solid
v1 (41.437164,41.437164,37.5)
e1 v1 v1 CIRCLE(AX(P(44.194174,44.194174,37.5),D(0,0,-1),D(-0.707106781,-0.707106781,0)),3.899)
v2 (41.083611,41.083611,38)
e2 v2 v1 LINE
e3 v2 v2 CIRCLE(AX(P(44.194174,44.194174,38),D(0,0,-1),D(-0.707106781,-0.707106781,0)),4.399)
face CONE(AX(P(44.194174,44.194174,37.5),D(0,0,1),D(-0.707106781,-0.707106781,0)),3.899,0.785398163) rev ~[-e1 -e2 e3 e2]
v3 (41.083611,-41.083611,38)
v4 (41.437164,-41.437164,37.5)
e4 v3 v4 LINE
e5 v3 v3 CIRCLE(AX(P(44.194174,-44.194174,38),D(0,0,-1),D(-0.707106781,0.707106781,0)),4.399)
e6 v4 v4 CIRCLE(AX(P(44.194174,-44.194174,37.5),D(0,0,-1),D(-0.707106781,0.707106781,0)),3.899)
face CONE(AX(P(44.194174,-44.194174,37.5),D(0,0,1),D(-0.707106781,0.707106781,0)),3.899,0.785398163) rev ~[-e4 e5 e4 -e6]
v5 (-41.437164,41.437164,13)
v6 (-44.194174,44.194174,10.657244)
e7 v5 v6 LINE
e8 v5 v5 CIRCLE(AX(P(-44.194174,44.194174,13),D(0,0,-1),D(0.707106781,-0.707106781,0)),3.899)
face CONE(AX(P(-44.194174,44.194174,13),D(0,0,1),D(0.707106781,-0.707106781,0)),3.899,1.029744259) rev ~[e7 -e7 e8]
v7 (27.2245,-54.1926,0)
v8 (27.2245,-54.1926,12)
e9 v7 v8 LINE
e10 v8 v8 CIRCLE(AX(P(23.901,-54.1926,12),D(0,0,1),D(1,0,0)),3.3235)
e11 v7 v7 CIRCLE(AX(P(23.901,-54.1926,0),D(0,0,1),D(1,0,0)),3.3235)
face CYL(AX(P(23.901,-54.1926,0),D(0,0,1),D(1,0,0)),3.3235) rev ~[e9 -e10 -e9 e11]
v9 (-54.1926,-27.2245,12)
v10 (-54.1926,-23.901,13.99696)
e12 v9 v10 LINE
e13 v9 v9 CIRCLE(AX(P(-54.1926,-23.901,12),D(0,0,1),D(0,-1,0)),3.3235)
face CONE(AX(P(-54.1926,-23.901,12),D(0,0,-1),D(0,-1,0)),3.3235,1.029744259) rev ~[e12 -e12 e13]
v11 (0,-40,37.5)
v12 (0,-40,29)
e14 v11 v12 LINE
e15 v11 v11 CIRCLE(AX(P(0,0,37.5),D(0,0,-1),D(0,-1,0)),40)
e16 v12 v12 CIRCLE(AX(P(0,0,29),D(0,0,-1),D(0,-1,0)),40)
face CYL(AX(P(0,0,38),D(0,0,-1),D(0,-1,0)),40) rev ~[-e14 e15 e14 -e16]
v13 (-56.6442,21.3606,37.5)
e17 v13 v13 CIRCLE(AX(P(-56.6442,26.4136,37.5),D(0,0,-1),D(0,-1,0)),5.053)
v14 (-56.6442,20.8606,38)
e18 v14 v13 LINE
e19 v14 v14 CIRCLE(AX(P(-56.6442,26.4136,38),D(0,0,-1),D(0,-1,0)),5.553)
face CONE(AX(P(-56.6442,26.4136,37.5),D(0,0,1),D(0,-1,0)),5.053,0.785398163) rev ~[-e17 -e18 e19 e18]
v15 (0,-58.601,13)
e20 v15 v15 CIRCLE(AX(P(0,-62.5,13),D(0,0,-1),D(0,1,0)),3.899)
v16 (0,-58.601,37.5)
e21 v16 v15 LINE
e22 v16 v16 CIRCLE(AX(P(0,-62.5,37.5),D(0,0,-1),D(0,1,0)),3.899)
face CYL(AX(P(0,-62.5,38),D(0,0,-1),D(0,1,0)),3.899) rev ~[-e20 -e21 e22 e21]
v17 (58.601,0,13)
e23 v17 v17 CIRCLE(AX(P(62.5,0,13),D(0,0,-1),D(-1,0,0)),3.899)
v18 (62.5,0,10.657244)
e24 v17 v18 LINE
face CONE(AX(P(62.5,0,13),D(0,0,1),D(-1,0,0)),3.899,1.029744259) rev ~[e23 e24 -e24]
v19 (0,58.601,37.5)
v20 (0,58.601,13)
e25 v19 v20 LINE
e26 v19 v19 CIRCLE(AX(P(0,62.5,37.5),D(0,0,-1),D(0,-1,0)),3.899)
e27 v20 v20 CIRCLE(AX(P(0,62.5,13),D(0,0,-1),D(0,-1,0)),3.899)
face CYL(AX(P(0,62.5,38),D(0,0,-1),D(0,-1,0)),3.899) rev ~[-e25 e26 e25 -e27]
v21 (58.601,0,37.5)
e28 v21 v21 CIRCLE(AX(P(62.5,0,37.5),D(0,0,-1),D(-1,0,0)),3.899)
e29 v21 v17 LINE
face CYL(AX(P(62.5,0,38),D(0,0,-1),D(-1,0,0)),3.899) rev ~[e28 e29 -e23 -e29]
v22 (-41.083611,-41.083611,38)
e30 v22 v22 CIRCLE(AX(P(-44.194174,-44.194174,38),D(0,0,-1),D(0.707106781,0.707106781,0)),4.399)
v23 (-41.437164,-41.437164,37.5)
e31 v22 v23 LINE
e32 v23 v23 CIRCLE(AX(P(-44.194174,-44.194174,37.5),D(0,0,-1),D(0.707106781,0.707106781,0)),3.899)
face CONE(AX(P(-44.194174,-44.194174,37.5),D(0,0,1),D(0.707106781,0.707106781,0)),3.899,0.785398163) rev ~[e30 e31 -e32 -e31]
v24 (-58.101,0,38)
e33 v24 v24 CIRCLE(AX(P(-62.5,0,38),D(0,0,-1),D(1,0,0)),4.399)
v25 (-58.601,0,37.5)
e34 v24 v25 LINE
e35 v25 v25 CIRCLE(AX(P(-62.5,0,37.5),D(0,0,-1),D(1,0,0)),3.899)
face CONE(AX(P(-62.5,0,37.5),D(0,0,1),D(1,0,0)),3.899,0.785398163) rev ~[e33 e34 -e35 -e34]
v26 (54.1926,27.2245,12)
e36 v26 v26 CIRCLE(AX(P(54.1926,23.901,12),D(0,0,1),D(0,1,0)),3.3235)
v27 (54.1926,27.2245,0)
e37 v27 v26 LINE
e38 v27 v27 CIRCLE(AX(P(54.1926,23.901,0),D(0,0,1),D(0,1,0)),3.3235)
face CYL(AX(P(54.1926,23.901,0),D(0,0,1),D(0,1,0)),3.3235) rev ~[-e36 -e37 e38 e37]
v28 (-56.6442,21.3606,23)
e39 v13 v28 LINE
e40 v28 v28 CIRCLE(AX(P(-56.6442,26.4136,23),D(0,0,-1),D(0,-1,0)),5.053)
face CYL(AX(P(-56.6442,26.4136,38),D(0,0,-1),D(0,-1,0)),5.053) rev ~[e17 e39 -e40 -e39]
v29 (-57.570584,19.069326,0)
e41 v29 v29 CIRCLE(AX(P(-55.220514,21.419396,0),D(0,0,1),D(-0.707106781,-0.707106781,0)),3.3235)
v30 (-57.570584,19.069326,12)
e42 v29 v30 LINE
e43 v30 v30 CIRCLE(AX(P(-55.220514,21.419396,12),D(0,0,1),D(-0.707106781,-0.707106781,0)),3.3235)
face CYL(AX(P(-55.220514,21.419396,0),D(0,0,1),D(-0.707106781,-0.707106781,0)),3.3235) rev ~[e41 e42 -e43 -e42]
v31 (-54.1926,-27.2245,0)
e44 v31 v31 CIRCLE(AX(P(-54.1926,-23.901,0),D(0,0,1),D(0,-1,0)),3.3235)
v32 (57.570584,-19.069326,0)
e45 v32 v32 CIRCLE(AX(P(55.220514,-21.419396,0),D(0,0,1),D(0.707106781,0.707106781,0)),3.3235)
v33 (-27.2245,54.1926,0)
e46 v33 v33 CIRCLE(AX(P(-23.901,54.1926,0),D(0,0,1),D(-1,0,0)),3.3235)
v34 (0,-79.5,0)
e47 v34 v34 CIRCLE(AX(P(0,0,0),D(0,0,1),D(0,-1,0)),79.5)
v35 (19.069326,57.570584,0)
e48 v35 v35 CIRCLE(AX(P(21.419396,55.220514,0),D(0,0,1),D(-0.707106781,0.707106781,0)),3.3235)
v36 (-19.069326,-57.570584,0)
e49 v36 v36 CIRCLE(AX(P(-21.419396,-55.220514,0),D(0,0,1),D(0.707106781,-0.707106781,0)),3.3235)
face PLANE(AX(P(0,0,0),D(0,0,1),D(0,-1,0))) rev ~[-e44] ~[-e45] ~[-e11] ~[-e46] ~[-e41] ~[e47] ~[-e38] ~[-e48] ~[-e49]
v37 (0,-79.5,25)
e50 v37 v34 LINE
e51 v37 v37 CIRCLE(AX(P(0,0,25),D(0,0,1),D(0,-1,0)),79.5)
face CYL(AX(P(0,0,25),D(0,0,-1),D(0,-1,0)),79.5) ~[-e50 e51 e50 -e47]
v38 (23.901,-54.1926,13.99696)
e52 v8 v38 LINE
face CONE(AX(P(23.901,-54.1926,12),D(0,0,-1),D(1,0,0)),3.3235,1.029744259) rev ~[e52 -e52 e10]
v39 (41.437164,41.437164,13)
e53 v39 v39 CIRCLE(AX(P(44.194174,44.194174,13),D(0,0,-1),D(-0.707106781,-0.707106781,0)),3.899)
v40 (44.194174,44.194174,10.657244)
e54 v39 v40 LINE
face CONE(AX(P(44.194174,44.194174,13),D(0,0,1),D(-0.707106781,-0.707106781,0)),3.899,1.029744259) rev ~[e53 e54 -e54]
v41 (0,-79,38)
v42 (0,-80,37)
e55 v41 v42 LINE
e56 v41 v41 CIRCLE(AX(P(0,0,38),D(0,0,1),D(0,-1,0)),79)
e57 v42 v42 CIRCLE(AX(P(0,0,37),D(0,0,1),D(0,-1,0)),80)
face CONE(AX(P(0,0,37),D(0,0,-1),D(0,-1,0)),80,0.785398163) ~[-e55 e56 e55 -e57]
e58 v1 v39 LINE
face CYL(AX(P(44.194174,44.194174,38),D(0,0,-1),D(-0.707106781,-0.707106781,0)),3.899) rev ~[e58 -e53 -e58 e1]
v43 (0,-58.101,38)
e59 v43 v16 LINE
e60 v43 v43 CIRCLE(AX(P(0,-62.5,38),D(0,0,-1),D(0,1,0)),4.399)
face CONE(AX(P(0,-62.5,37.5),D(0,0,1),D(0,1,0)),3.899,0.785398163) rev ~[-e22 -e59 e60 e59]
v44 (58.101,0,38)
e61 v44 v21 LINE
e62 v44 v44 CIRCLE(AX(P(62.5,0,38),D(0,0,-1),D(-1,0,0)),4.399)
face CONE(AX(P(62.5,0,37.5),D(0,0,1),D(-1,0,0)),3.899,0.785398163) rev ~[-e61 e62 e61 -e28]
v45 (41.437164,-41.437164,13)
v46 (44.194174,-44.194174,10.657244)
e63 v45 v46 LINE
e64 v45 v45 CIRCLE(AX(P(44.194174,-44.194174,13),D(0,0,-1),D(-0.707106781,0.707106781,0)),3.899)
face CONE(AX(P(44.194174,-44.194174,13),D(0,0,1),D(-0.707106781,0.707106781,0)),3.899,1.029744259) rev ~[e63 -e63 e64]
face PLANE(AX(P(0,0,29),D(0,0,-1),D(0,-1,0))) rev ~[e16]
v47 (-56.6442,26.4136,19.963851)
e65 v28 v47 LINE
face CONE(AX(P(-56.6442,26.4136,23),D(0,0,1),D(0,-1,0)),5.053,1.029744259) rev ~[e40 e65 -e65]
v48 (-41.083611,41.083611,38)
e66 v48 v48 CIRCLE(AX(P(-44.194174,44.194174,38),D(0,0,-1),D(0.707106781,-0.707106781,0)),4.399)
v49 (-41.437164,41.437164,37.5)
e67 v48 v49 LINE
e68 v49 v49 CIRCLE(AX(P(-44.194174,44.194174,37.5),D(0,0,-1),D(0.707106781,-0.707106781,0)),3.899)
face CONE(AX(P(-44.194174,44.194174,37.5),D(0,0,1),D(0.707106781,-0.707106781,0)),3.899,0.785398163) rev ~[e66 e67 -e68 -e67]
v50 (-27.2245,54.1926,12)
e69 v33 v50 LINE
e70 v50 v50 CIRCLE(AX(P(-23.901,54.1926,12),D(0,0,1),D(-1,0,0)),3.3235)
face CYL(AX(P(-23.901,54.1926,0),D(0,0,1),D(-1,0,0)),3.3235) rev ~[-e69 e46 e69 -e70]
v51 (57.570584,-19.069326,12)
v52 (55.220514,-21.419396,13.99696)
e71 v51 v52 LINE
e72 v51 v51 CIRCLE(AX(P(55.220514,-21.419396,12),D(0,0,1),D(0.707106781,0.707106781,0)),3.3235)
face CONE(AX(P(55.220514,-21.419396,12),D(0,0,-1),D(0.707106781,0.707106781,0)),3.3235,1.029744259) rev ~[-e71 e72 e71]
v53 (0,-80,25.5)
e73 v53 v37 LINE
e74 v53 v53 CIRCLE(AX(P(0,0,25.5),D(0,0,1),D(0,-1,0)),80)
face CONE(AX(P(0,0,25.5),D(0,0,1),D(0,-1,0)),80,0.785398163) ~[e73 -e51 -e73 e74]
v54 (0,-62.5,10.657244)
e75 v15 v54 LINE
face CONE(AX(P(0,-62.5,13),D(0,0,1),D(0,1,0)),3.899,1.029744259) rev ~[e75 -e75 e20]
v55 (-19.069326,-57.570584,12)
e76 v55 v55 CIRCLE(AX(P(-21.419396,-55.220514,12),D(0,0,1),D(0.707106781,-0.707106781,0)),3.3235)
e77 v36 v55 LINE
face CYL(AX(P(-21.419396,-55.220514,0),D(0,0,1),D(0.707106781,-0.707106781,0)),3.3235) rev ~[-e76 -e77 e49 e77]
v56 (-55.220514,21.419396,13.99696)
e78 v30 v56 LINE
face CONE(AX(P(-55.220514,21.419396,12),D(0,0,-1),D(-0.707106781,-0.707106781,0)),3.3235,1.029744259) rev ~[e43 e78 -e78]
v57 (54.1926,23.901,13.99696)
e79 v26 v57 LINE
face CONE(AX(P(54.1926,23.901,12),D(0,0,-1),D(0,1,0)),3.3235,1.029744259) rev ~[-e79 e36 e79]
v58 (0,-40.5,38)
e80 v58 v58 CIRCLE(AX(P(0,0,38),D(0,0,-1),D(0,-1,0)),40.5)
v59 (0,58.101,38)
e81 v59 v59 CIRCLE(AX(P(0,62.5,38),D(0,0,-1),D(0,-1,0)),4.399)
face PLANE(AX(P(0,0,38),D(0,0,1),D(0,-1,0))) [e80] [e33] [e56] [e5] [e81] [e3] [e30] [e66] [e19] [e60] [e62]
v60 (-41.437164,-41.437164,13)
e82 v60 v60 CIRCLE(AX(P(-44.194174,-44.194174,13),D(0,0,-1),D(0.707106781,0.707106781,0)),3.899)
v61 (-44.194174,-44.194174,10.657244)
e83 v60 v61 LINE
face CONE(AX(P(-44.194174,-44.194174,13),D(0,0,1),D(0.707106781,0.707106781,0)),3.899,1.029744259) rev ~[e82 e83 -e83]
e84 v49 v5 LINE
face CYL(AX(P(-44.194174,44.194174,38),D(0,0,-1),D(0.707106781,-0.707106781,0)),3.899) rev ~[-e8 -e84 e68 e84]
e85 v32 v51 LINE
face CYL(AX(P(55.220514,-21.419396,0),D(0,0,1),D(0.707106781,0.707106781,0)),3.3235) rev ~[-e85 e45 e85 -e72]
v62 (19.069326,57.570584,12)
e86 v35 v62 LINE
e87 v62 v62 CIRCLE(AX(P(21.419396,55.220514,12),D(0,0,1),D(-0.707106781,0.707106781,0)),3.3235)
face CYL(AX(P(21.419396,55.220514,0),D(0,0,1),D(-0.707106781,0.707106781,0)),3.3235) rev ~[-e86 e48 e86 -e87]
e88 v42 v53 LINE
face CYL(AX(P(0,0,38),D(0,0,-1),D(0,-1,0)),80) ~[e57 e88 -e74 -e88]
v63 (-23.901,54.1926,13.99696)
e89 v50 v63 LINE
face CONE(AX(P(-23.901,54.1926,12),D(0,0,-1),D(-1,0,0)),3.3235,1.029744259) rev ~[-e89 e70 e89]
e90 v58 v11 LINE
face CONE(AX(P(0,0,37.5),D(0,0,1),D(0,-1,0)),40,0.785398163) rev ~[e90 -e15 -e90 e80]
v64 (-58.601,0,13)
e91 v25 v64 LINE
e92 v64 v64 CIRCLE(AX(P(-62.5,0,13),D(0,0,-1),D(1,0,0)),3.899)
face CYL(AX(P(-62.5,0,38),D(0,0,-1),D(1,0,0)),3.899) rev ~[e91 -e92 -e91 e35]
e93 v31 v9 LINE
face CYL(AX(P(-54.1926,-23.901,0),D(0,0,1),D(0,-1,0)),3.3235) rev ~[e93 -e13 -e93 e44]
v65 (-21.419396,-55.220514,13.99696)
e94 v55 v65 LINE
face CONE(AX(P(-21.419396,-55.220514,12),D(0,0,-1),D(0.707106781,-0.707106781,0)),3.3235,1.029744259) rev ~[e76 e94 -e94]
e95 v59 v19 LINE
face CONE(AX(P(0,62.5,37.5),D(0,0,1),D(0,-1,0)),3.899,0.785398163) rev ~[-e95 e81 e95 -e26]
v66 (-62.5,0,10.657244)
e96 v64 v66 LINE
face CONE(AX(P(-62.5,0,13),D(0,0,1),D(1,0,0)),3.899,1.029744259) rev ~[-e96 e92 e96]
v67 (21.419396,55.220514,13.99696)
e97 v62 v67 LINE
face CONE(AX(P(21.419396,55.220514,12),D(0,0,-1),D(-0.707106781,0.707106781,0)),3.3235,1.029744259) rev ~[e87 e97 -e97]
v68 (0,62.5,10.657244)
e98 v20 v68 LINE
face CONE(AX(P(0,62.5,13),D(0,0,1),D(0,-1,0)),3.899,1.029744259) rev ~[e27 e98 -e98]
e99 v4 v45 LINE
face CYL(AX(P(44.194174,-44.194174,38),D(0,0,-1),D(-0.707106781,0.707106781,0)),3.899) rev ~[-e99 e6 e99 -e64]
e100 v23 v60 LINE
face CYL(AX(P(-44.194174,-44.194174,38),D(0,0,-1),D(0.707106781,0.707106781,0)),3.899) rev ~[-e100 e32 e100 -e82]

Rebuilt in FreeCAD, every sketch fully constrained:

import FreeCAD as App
import Part
import Sketcher
Q = App.Units.Quantity


def edges_at(feature, points):
    """Names of the edges that pass closest to the given points."""
    edges = feature.Shape.Edges
    near = lambda p: min(range(len(edges)), key=lambda i: edges[i].distToShape(Part.Vertex(*p))[0])
    return sorted({f"Edge{near(p) + 1}" for p in points})

doc = App.newDocument("Part")
body = doc.addObject("PartDesign::Body", "Body")

# Sketch on YZ plane
sketch1 = doc.addObject("Sketcher::SketchObject", "Sketch")
body.addObject(sketch1)
sketch1.AttachmentSupport = (doc.YZ_Plane, [""])
sketch1.MapMode = "FlatFace"
sketch1.addGeometry([
    Part.LineSegment(App.Vector(0, 38, 0), App.Vector(-80, 38, 0)),  # 0
    Part.LineSegment(App.Vector(-80, 38, 0), App.Vector(-80, 25.5, 0)),  # 1
    Part.LineSegment(App.Vector(-80, 25.5, 0), App.Vector(-79.5, 25, 0)),  # 2
    Part.LineSegment(App.Vector(-79.5, 25, 0), App.Vector(-79.5, 0, 0)),  # 3
    Part.LineSegment(App.Vector(-79.5, 0, 0), App.Vector(0, 0, 0)),  # 4
    Part.LineSegment(App.Vector(0, 0, 0), App.Vector(0, 38, 0)),  # 5
], False)
sketch1.addConstraint([
    Sketcher.Constraint("Coincident", 0, 2, 1, 1),
    Sketcher.Constraint("Coincident", 1, 2, 2, 1),
    Sketcher.Constraint("Coincident", 2, 2, 3, 1),
    Sketcher.Constraint("Coincident", 3, 2, 4, 1),
    Sketcher.Constraint("Coincident", 4, 2, 5, 1),
    Sketcher.Constraint("Coincident", 5, 2, 0, 1),
    Sketcher.Constraint("Horizontal", 0),
    Sketcher.Constraint("Vertical", 1),
    Sketcher.Constraint("Vertical", 3),
    Sketcher.Constraint("Horizontal", 4),
    Sketcher.Constraint("Vertical", 5),
    Sketcher.Constraint("Coincident", 4, 2, -1, 1),
    Sketcher.Constraint("DistanceX", 0, 2, 0, 1, 80.0),
    Sketcher.Constraint("DistanceY", 3, 2, 3, 1, 25.0),
    Sketcher.Constraint("DistanceY", 5, 1, 5, 2, 38.0),
    Sketcher.Constraint("Angle", 2, Q("-45 deg")),
    Sketcher.Constraint("DistanceX", 4, 1, 4, 2, 79.5),
])
revolution = doc.addObject("PartDesign::Revolution", "Revolution")
body.addObject(revolution)
revolution.Profile = sketch1
revolution.ReferenceAxis = (sketch1, ["V_Axis"])
revolution.Angle = 360

# Sketch on XY plane
sketch2 = doc.addObject("Sketcher::SketchObject", "Sketch001")
body.addObject(sketch2)
sketch2.AttachmentSupport = (doc.XY_Plane, [""])
sketch2.MapMode = "FlatFace"
sketch2.AttachmentOffset = App.Placement(App.Vector(0, 0, 38), App.Rotation())
sketch2.addGeometry(Part.Circle(App.Vector(0, 62.5, 0), App.Vector(0, 0, 1), 3.9), False)
sketch2.addConstraint([
    Sketcher.Constraint("PointOnObject", 0, 3, -2),
    Sketcher.Constraint("Diameter", 0, 7.798),
    Sketcher.Constraint("DistanceY", -1, 1, 0, 3, 62.5),
])
doc.recompute()
hole = doc.addObject("PartDesign::Hole", "Hole")
body.addObject(hole)
hole.Profile = sketch2
hole.ThreadType = "None"
hole.Diameter = 7.798
hole.DepthType = "Dimension"
hole.Depth = 25
hole.DrillPoint = "Angled"
hole.DrillPointAngle = 118
doc.recompute()

polarpattern = doc.addObject("PartDesign::PolarPattern", "PolarPattern")
body.addObject(polarpattern)
polarpattern.Originals = [hole]
polarpattern.Axis = (doc.Z_Axis, [""])
polarpattern.Angle = 360
polarpattern.Occurrences = 8
body.Tip = polarpattern
doc.recompute()

chamfer = doc.addObject("PartDesign::Chamfer", "Chamfer")
body.addObject(chamfer)
chamfer.Base = (polarpattern, edges_at(polarpattern, [(0, 80, 38)]))
chamfer.Size = 1

# Sketch on XY plane
sketch3 = doc.addObject("Sketcher::SketchObject", "Sketch002")
body.addObject(sketch3)
sketch3.AttachmentSupport = (doc.XY_Plane, [""])
sketch3.MapMode = "FlatFace"
sketch3.AttachmentOffset = App.Placement(App.Vector(0, 0, 38), App.Rotation())
sketch3.addGeometry(Part.Circle(App.Vector(0, 0, 0), App.Vector(0, 0, 1), 40), False)
sketch3.addConstraint([
    Sketcher.Constraint("Coincident", 0, 3, -1, 1),
    Sketcher.Constraint("Diameter", 0, 80.0),
])
doc.recompute()
hole2 = doc.addObject("PartDesign::Hole", "Hole001")
body.addObject(hole2)
hole2.Profile = sketch3
hole2.ThreadType = "None"
hole2.Diameter = 80
hole2.DepthType = "Dimension"
hole2.Depth = 9
hole2.DrillPoint = "Flat"
doc.recompute()

chamfer2 = doc.addObject("PartDesign::Chamfer", "Chamfer001")
body.addObject(chamfer2)
chamfer2.Base = (hole2, edges_at(hole2, [
    (-46.951, 46.951, 38),
    (-66.399, 0, 38),
    (-46.951, -46.951, 38),
    (0, -66.399, 38),
    (46.951, -46.951, 38),
    (66.399, 0, 38),
    (46.951, 46.951, 38),
    (0, 66.399, 38),
    (0, 40, 38),
]))
chamfer2.Size = 0.5

# Sketch on XY plane
sketch4 = doc.addObject("Sketcher::SketchObject", "Sketch003")
body.addObject(sketch4)
sketch4.AttachmentSupport = (doc.XY_Plane, [""])
sketch4.MapMode = "FlatFace"
sketch4.AttachmentOffset = App.Placement(App.Vector(0, 0, 38), App.Rotation())
sketch4.addGeometry(Part.Circle(App.Vector(-57, 26, 0), App.Vector(0, 0, 1), 5), False)
sketch4.addConstraint([
    Sketcher.Constraint("Diameter", 0, 10.106),
    Sketcher.Constraint("DistanceX", 0, 3, -1, 1, 56.6442),
    Sketcher.Constraint("DistanceY", -1, 1, 0, 3, 26.4136),
])
doc.recompute()
hole3 = doc.addObject("PartDesign::Hole", "Hole002")
body.addObject(hole3)
hole3.Profile = sketch4
hole3.ThreadType = "None"
hole3.Diameter = 10.106
hole3.DepthType = "Dimension"
hole3.Depth = 15
hole3.DrillPoint = "Angled"
hole3.DrillPointAngle = 118
doc.recompute()

chamfer3 = doc.addObject("PartDesign::Chamfer", "Chamfer002")
body.addObject(chamfer3)
chamfer3.Base = (hole3, edges_at(hole3, [(-56.644, 31.467, 38)]))
chamfer3.Size = 0.5

# Sketch on XY plane
sketch5 = doc.addObject("Sketcher::SketchObject", "Sketch004")
body.addObject(sketch5)
sketch5.AttachmentSupport = (doc.XY_Plane, [""])
sketch5.MapMode = "FlatFace"
sketch5.addGeometry(Part.Circle(App.Vector(54.2, 23.9, 0), App.Vector(0, 0, 1), 3.3), False)
sketch5.addConstraint([
    Sketcher.Constraint("Diameter", 0, 6.647),
    Sketcher.Constraint("DistanceY", -1, 1, 0, 3, 23.901),
    Sketcher.Constraint("DistanceX", -1, 1, 0, 3, 54.1926),
])
doc.recompute()
hole4 = doc.addObject("PartDesign::Hole", "Hole003")
body.addObject(hole4)
hole4.Profile = sketch5
hole4.ThreadType = "None"
hole4.Diameter = 6.647
hole4.DepthType = "Dimension"
hole4.Depth = 12
hole4.DrillPoint = "Angled"
hole4.DrillPointAngle = 118
hole4.Reversed = True
doc.recompute()

polarpattern2 = doc.addObject("PartDesign::PolarPattern", "PolarPattern001")
body.addObject(polarpattern2)
polarpattern2.Originals = [hole4]
polarpattern2.Axis = (doc.Z_Axis, [""])
polarpattern2.Angle = 360
polarpattern2.Occurrences = 8
body.Tip = polarpattern2

doc.recompute()
